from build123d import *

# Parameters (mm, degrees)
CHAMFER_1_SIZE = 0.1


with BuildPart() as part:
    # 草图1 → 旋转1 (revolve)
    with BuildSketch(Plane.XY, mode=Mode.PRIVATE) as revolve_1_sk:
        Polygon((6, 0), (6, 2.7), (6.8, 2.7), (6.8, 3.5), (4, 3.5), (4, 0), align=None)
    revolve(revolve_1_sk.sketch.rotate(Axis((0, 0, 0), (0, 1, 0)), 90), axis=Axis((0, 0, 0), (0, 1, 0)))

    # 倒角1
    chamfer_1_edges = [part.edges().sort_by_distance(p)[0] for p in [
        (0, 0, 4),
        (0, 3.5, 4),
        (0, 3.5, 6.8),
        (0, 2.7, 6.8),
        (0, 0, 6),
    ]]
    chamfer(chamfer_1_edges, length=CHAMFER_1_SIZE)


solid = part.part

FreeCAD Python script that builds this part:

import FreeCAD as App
import Part
import Sketcher

V = App.Vector


def edges_at(feature, points):
    """Names of the edges that pass closest to the given points."""
    edges = feature.Shape.Edges
    near = lambda p: min(range(len(edges)), key=lambda i: edges[i].distToShape(Part.Vertex(*p))[0])
    return sorted({f"Edge{near(p) + 1}" for p in points})

doc = App.newDocument("Part")
body = doc.addObject("PartDesign::Body", "Body")

# Sketch on XY plane
sketch1 = body.newObject("Sketcher::SketchObject", "Sketch")
sketch1.AttachmentSupport = (doc.getObject("XY_Plane"), [""])
sketch1.MapMode = "FlatFace"
sketch1.addGeometry([
    Part.LineSegment(V(6, 0, 0), V(6, 2.7, 0)),  # 0
    Part.LineSegment(V(6, 2.7, 0), V(6.8, 2.7, 0)),  # 1
    Part.LineSegment(V(6.8, 2.7, 0), V(6.8, 3.5, 0)),  # 2
    Part.LineSegment(V(6.8, 3.5, 0), V(4, 3.5, 0)),  # 3
    Part.LineSegment(V(4, 3.5, 0), V(4, 0, 0)),  # 4
    Part.LineSegment(V(4, 0, 0), V(6, 0, 0)),  # 5
], False)
sketch1.addConstraint([
    Sketcher.Constraint("Coincident", 0, 2, 1, 1),
    Sketcher.Constraint("Coincident", 1, 2, 2, 1),
    Sketcher.Constraint("Coincident", 2, 2, 3, 1),
    Sketcher.Constraint("Coincident", 3, 2, 4, 1),
    Sketcher.Constraint("Coincident", 4, 2, 5, 1),
    Sketcher.Constraint("Coincident", 5, 2, 0, 1),
    Sketcher.Constraint("Vertical", 0),
    Sketcher.Constraint("Horizontal", 1),
    Sketcher.Constraint("Vertical", 2),
    Sketcher.Constraint("Horizontal", 3),
    Sketcher.Constraint("Vertical", 4),
    Sketcher.Constraint("Horizontal", 5),
    Sketcher.Constraint("PointOnObject", 4, 2, -1),
    Sketcher.Constraint("Equal", 1, 2),
    Sketcher.Constraint("DistanceX", 5, 1, 5, 2, 2.0),
    Sketcher.Constraint("DistanceX", 1, 1, 1, 2, 0.8),
    Sketcher.Constraint("DistanceY", 0, 1, 0, 2, 2.7),
    Sketcher.Constraint("DistanceX", -1, 1, 0, 2, 6.0),
])
revolution = body.newObject("PartDesign::Revolution", "Revolution")
revolution.Profile = sketch1
revolution.ReferenceAxis = (sketch1, ["V_Axis"])
revolution.Angle = 360
doc.recompute()

chamfer = body.newObject("PartDesign::Chamfer", "Chamfer")
chamfer.Base = (revolution, edges_at(revolution, [
    (0, 0, 4),
    (0, 3.5, 4),
    (0, 3.5, 6.8),
    (0, 2.7, 6.8),
    (0, 0, 6),
]))
chamfer.Size = 0.1

doc.recompute()
